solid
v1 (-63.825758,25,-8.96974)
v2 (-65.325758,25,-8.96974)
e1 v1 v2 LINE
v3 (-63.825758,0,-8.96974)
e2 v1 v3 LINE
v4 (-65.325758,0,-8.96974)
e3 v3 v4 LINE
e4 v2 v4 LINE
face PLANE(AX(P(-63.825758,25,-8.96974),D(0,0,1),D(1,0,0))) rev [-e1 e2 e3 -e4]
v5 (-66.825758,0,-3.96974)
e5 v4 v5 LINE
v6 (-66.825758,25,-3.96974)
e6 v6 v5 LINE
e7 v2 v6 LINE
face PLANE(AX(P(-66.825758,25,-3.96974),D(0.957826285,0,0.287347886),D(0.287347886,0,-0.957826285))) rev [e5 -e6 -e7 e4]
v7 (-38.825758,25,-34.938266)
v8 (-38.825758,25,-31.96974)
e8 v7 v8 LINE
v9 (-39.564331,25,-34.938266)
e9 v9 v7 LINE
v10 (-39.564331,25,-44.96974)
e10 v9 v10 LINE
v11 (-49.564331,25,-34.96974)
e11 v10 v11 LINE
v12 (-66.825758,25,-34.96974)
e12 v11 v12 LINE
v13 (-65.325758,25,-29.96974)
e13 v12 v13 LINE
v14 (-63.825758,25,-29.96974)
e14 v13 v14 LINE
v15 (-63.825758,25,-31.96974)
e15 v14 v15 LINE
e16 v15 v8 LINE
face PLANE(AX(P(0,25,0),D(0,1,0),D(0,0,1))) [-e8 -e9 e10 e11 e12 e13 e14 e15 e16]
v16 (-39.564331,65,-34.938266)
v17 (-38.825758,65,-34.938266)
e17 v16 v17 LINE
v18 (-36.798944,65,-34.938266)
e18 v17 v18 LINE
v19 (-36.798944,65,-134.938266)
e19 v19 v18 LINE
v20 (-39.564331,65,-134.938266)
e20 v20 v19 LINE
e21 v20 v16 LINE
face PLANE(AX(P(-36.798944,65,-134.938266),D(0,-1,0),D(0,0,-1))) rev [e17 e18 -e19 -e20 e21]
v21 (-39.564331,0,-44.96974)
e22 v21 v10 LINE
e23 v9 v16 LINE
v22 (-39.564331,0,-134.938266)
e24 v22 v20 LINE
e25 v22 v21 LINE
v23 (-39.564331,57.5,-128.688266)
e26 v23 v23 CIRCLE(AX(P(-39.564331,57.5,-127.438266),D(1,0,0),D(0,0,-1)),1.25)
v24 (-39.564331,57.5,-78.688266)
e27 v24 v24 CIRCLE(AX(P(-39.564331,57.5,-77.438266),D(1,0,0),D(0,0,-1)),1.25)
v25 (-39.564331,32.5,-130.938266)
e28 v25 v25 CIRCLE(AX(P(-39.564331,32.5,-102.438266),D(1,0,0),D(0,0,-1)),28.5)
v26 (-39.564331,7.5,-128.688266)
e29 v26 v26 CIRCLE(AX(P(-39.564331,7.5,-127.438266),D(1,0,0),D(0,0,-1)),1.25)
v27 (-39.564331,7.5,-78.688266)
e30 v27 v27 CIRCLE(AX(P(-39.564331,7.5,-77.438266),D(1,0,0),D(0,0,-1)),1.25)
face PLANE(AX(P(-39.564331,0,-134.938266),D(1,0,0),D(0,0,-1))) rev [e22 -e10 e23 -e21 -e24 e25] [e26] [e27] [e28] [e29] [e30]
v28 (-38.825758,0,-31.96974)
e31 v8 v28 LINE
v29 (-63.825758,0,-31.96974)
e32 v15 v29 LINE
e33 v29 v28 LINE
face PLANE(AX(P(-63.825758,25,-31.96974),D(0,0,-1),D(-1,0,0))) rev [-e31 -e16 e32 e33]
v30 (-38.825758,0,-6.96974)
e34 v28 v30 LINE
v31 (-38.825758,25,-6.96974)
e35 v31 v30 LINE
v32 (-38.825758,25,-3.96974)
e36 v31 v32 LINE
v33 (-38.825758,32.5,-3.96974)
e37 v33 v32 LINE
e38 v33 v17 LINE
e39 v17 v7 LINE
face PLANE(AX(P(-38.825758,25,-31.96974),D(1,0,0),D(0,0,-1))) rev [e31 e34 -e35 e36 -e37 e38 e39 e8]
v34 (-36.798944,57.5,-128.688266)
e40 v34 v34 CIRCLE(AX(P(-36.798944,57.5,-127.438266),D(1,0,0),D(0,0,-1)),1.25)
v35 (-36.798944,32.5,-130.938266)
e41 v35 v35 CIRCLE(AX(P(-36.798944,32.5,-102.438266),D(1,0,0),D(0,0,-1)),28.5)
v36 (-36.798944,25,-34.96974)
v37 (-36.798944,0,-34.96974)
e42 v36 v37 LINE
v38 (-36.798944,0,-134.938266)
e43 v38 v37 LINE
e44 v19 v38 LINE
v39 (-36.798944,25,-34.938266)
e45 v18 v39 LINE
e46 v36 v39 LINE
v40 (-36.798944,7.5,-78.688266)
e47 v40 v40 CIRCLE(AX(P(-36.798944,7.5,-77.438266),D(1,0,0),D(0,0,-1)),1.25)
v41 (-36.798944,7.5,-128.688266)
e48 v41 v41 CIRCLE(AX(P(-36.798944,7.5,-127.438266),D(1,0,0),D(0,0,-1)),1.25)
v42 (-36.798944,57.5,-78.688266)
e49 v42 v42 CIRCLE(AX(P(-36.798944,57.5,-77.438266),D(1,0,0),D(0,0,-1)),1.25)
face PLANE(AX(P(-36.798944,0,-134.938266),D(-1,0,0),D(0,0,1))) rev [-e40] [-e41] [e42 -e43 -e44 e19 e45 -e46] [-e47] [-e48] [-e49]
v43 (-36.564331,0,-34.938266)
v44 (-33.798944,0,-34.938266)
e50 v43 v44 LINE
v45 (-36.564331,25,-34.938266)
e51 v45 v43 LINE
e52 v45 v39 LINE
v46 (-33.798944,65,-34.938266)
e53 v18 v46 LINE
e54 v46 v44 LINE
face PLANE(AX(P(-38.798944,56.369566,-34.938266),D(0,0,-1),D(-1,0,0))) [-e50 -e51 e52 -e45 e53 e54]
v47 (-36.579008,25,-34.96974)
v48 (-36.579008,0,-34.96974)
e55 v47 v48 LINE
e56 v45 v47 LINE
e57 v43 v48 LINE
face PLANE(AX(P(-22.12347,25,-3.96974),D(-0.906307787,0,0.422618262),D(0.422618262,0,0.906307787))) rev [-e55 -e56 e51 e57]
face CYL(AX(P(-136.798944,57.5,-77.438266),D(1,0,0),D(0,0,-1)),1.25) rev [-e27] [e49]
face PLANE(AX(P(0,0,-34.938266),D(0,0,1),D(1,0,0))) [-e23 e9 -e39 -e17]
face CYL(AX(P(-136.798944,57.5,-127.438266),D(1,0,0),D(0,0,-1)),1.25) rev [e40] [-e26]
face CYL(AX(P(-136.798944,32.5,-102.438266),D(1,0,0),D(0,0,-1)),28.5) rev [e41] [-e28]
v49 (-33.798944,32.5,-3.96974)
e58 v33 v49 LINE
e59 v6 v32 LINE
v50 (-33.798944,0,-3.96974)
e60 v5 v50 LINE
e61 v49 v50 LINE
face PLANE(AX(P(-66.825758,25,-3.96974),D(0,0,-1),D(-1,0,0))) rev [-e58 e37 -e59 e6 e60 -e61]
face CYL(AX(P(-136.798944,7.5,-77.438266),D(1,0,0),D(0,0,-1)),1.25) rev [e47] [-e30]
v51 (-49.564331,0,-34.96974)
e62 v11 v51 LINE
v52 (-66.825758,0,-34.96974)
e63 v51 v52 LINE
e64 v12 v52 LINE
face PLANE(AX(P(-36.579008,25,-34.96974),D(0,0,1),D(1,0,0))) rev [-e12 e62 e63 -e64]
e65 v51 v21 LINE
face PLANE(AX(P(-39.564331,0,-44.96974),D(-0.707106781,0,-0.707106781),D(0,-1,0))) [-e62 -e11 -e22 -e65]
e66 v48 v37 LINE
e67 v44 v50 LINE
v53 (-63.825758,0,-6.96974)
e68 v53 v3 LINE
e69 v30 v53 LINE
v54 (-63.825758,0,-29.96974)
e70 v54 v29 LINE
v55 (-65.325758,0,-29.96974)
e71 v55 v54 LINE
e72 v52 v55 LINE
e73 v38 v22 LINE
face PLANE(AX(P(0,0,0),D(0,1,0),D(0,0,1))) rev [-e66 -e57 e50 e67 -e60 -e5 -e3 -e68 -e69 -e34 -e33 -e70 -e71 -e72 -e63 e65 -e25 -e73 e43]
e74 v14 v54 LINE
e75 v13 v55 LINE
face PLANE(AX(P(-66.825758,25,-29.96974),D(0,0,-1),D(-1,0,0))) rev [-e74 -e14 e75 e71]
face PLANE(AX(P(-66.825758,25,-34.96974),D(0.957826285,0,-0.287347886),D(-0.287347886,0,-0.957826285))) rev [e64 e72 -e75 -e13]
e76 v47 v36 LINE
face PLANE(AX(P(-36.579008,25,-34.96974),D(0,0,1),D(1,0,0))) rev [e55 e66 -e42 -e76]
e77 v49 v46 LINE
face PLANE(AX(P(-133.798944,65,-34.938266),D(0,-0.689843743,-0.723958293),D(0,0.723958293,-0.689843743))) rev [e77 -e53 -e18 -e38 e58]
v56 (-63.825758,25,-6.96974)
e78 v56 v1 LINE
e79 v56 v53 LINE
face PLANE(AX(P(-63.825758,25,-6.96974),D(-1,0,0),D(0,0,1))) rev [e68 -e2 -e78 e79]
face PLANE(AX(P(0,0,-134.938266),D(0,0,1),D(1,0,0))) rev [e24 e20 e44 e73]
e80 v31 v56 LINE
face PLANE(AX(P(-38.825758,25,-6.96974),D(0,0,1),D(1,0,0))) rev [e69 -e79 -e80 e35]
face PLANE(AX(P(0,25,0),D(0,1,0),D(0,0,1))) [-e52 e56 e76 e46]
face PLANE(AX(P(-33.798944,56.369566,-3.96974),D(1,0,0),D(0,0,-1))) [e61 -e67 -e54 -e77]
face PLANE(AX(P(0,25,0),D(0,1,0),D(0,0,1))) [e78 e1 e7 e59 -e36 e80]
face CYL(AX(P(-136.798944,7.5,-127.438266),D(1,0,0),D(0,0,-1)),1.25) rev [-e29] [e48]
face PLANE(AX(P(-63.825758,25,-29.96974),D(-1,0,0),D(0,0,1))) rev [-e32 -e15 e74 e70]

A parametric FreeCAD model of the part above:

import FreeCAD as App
import Part
import Sketcher

V = App.Vector
Q = App.Units.Quantity


def edges_at(feature, points):
    """Names of the edges that pass closest to the given points."""
    edges = feature.Shape.Edges
    near = lambda p: min(range(len(edges)), key=lambda i: edges[i].distToShape(Part.Vertex(*p))[0])
    return sorted({f"Edge{near(p) + 1}" for p in points})

doc = App.newDocument("Part")
params = doc.addObject("Spreadsheet::Sheet", "Params")
for row, (alias, value) in enumerate([
    ("sketch1_width", "3 mm"),
    ("sketch1_width2", "25 mm"),
    ("sketch1_height", "5 mm"),
    ("sketch1_height2", "2 mm"),
    ("pad1_length", "25 mm"),
    ("sketch2_height", "5 mm"),
    ("sketch2_width", "1.5 mm"),
    ("sketch4_width", "5 mm"),
    ("pad2_length", "25 mm"),
    ("sketch5_height", "65 mm"),
    ("pad3_length", "100 mm"),
    ("pad4_length", "40 mm"),
    ("sketch7_width", "32.5 mm"),
    ("pocket3_length", "100 mm"),
    ("sketch8_diameter", "57 mm"),
    ("pocket4_length", "100 mm"),
    ("sketch9_diameter", "2.5 mm"),
    ("pocket5_length", "100 mm"),
    ("chamfer_size", "10 mm"),
], start=1):
    params.set(f"A{row}", alias)
    params.set(f"B{row}", "=" + value)
    params.setAlias(f"B{row}", alias)

body = doc.addObject("PartDesign::Body", "Body")

# Sketch on XZ plane
sketch1 = body.newObject("Sketcher::SketchObject", "Sketch")
sketch1.AttachmentSupport = (doc.getObject("XZ_Plane"), [""])
sketch1.MapMode = "FlatFace"
sketch1.addGeometry(Part.LineSegment(V(-66.8, -35, 0), V(-66.8, -30, 0)), False)
sketch1.addGeometry(Part.LineSegment(V(-66.8, -30, 0), V(-63.8, -30, 0)), False)
sketch1.addGeometry(Part.LineSegment(V(-63.8, -30, 0), V(-63.8, -32, 0)), False)
sketch1.addGeometry(Part.LineSegment(V(-63.8, -32, 0), V(-38.8, -32, 0)), False)
sketch1.addGeometry(Part.LineSegment(V(-38.8, -32, 0), V(-38.8, -7, 0)), False)
sketch1.addGeometry(Part.LineSegment(V(-38.8, -7, 0), V(-63.8, -7, 0)), False)
sketch1.addGeometry(Part.LineSegment(V(-63.8, -7, 0), V(-63.8, -9, 0)), False)
sketch1.addGeometry(Part.LineSegment(V(-63.8, -9, 0), V(-66.8, -9, 0)), False)
sketch1.addGeometry(Part.LineSegment(V(-66.8, -9, 0), V(-66.8, -4, 0)), False)
sketch1.addGeometry(Part.LineSegment(V(-66.8, -4, 0), V(-22.1, -4, 0)), False)
sketch1.addGeometry(Part.LineSegment(V(-22.1, -4, 0), V(-36.6, -35, 0)), False)
sketch1.addGeometry(Part.LineSegment(V(-36.6, -35, 0), V(-66.8, -35, 0)), False)
sketch1.addConstraint(Sketcher.Constraint("Coincident", 0, 2, 1, 1))
sketch1.addConstraint(Sketcher.Constraint("Coincident", 1, 2, 2, 1))
sketch1.addConstraint(Sketcher.Constraint("Coincident", 2, 2, 3, 1))
sketch1.addConstraint(Sketcher.Constraint("Coincident", 3, 2, 4, 1))
sketch1.addConstraint(Sketcher.Constraint("Coincident", 4, 2, 5, 1))
sketch1.addConstraint(Sketcher.Constraint("Coincident", 5, 2, 6, 1))
sketch1.addConstraint(Sketcher.Constraint("Coincident", 6, 2, 7, 1))
sketch1.addConstraint(Sketcher.Constraint("Coincident", 7, 2, 8, 1))
sketch1.addConstraint(Sketcher.Constraint("Coincident", 8, 2, 9, 1))
sketch1.addConstraint(Sketcher.Constraint("Coincident", 9, 2, 10, 1))
sketch1.addConstraint(Sketcher.Constraint("Coincident", 10, 2, 11, 1))
sketch1.addConstraint(Sketcher.Constraint("Coincident", 11, 2, 0, 1))
sketch1.addConstraint(Sketcher.Constraint("Vertical", 0))
sketch1.addConstraint(Sketcher.Constraint("Horizontal", 1))
sketch1.addConstraint(Sketcher.Constraint("Vertical", 2))
sketch1.addConstraint(Sketcher.Constraint("Horizontal", 3))
sketch1.addConstraint(Sketcher.Constraint("Vertical", 4))
sketch1.addConstraint(Sketcher.Constraint("Horizontal", 5))
sketch1.addConstraint(Sketcher.Constraint("Vertical", 6))
sketch1.addConstraint(Sketcher.Constraint("Horizontal", 7))
sketch1.addConstraint(Sketcher.Constraint("Vertical", 8))
sketch1.addConstraint(Sketcher.Constraint("Horizontal", 9))
sketch1.addConstraint(Sketcher.Constraint("Horizontal", 11))
sketch1.addConstraint(Sketcher.Constraint("Vertical", 2, 2, 5, 2))
sketch1.addConstraint(Sketcher.Constraint("Vertical", 0, 2, 7, 2))
sketch1.addConstraint(Sketcher.Constraint("Equal", 5, 4))
sketch1.addConstraint(Sketcher.Constraint("Equal", 2, 6))
sketch1.addConstraint(Sketcher.Constraint("Equal", 0, 8))
sketch1.addConstraint(Sketcher.Constraint("DistanceX", 1, 1, 1, 2, Q("3 mm")))
sketch1.addConstraint(Sketcher.Constraint("DistanceX", 3, 1, 3, 2, Q("25 mm")))
sketch1.addConstraint(Sketcher.Constraint("DistanceY", 0, 1, 0, 2, Q("5 mm")))
sketch1.addConstraint(Sketcher.Constraint("DistanceY", 2, 2, 2, 1, Q("2 mm")))
sketch1.addConstraint(Sketcher.Constraint("Angle", 10, Q("-115 deg")))
sketch1.addConstraint(Sketcher.Constraint("DistanceX", 11, 2, 11, 1, Q("30.24675 mm")))
sketch1.addConstraint(Sketcher.Constraint("DistanceY", 0, 2, -1, 1, Q("29.96974 mm")))
sketch1.addConstraint(Sketcher.Constraint("DistanceX", 9, 2, -1, 1, Q("22.12347 mm")))
sketch1.setExpression("Constraints[28]", "Params.sketch1_width")
sketch1.setExpression("Constraints[29]", "Params.sketch1_width2")
sketch1.setExpression("Constraints[30]", "Params.sketch1_height")
sketch1.setExpression("Constraints[31]", "Params.sketch1_height2")
pad1 = body.newObject("PartDesign::Pad", "Pad")
pad1.Profile = sketch1
pad1.setExpression("Length", "Params.pad1_length")
pad1.Reversed = True

# Sketch on XZ plane
sketch2 = body.newObject("Sketcher::SketchObject", "Sketch001")
sketch2.AttachmentSupport = (doc.getObject("XZ_Plane"), [""])
sketch2.MapMode = "FlatFace"
sketch2.addGeometry(Part.LineSegment(V(-65.3, -9, 0), V(-66.8, -4, 0)), False)
sketch2.addGeometry(Part.LineSegment(V(-66.8, -4, 0), V(-66.8, -9, 0)), False)
sketch2.addGeometry(Part.LineSegment(V(-66.8, -9, 0), V(-65.3, -9, 0)), False)
sketch2.addGeometry(Part.LineSegment(V(-66.8, -30, 0), V(-66.8, -35, 0)), False)
sketch2.addGeometry(Part.LineSegment(V(-66.8, -35, 0), V(-65.3, -30, 0)), False)
sketch2.addGeometry(Part.LineSegment(V(-65.3, -30, 0), V(-66.8, -30, 0)), False)
sketch2.addConstraint(Sketcher.Constraint("Coincident", 0, 2, 1, 1))
sketch2.addConstraint(Sketcher.Constraint("Coincident", 1, 2, 2, 1))
sketch2.addConstraint(Sketcher.Constraint("Coincident", 2, 2, 0, 1))
sketch2.addConstraint(Sketcher.Constraint("Coincident", 3, 2, 4, 1))
sketch2.addConstraint(Sketcher.Constraint("Coincident", 4, 2, 5, 1))
sketch2.addConstraint(Sketcher.Constraint("Coincident", 5, 2, 3, 1))
sketch2.addConstraint(Sketcher.Constraint("Vertical", 1))
sketch2.addConstraint(Sketcher.Constraint("Horizontal", 2))
sketch2.addConstraint(Sketcher.Constraint("Vertical", 3))
sketch2.addConstraint(Sketcher.Constraint("Horizontal", 5))
sketch2.addConstraint(Sketcher.Constraint("Vertical", 1, 2, 3, 2))
sketch2.addConstraint(Sketcher.Constraint("Vertical", 2, 2, 4, 2))
sketch2.addConstraint(Sketcher.Constraint("Equal", 1, 3))
sketch2.addConstraint(Sketcher.Constraint("DistanceY", 1, 2, 1, 1, Q("5 mm")))
sketch2.addConstraint(Sketcher.Constraint("DistanceX", 2, 1, 2, 2, Q("1.5 mm")))
sketch2.addConstraint(Sketcher.Constraint("DistanceY", 3, 2, 1, 2, Q("26 mm")))
sketch2.addConstraint(Sketcher.Constraint("DistanceY", 0, 2, -1, 1, Q("3.96974 mm")))
sketch2.addConstraint(Sketcher.Constraint("DistanceX", 0, 2, -1, 1, Q("66.825758 mm")))
sketch2.setExpression("Constraints[13]", "Params.sketch2_height")
sketch2.setExpression("Constraints[14]", "Params.sketch2_width")
pocket1 = body.newObject("PartDesign::Pocket", "Pocket")
pocket1.Profile = sketch2
pocket1.Type = "ThroughAll"

# Sketch on XZ plane
sketch3 = body.newObject("Sketcher::SketchObject", "Sketch002")
sketch3.AttachmentSupport = (doc.getObject("XZ_Plane"), [""])
sketch3.MapMode = "FlatFace"
sketch3.addGeometry(Part.LineSegment(V(-19, -40, 0), V(-19, -1, 0)), False)
sketch3.addGeometry(Part.LineSegment(V(-19, -1, 0), V(-36, -1, 0)), False)
sketch3.addGeometry(Part.LineSegment(V(-36, -1, 0), V(-36, -40, 0)), False)
sketch3.addGeometry(Part.LineSegment(V(-36, -40, 0), V(-19, -40, 0)), False)
sketch3.addConstraint(Sketcher.Constraint("Coincident", 0, 2, 1, 1))
sketch3.addConstraint(Sketcher.Constraint("Coincident", 1, 2, 2, 1))
sketch3.addConstraint(Sketcher.Constraint("Coincident", 2, 2, 3, 1))
sketch3.addConstraint(Sketcher.Constraint("Coincident", 3, 2, 0, 1))
sketch3.addConstraint(Sketcher.Constraint("Vertical", 0))
sketch3.addConstraint(Sketcher.Constraint("Horizontal", 1))
sketch3.addConstraint(Sketcher.Constraint("Vertical", 2))
sketch3.addConstraint(Sketcher.Constraint("Horizontal", 3))
sketch3.addConstraint(Sketcher.Constraint("DistanceY", 0, 1, 0, 2, Q("38.473599 mm")))
sketch3.addConstraint(Sketcher.Constraint("DistanceX", 1, 2, 1, 1, Q("16.608313 mm")))
sketch3.addConstraint(Sketcher.Constraint("DistanceX", 0, 2, -1, 1, Q("19.399318 mm")))
sketch3.addConstraint(Sketcher.Constraint("DistanceY", 0, 2, -1, 1, Q("1.302944 mm")))
pocket2 = body.newObject("PartDesign::Pocket", "Pocket001")
pocket2.Profile = sketch3
pocket2.Type = "ThroughAll"

# Sketch on XZ plane
sketch4 = body.newObject("Sketcher::SketchObject", "Sketch003")
sketch4.AttachmentSupport = (doc.getObject("XZ_Plane"), [""])
sketch4.MapMode = "FlatFace"
sketch4.addGeometry(Part.LineSegment(V(-34, -35, 0), V(-34, -4, 0)), False)
sketch4.addGeometry(Part.LineSegment(V(-34, -4, 0), V(-39, -4, 0)), False)
sketch4.addGeometry(Part.LineSegment(V(-39, -4, 0), V(-39, -35, 0)), False)
sketch4.addGeometry(Part.LineSegment(V(-39, -35, 0), V(-34, -35, 0)), False)
sketch4.addConstraint(Sketcher.Constraint("Coincident", 0, 2, 1, 1))
sketch4.addConstraint(Sketcher.Constraint("Coincident", 1, 2, 2, 1))
sketch4.addConstraint(Sketcher.Constraint("Coincident", 2, 2, 3, 1))
sketch4.addConstraint(Sketcher.Constraint("Coincident", 3, 2, 0, 1))
sketch4.addConstraint(Sketcher.Constraint("Vertical", 0))
sketch4.addConstraint(Sketcher.Constraint("Horizontal", 1))
sketch4.addConstraint(Sketcher.Constraint("Vertical", 2))
sketch4.addConstraint(Sketcher.Constraint("Horizontal", 3))
sketch4.addConstraint(Sketcher.Constraint("DistanceX", 1, 2, 1, 1, Q("5 mm")))
sketch4.addConstraint(Sketcher.Constraint("DistanceY", 0, 1, 0, 2, Q("30.968527 mm")))
sketch4.addConstraint(Sketcher.Constraint("DistanceY", 0, 2, -1, 1, Q("3.96974 mm")))
sketch4.addConstraint(Sketcher.Constraint("DistanceX", 0, 2, -1, 1, Q("33.798944 mm")))
sketch4.setExpression("Constraints[8]", "Params.sketch4_width")
pad2 = body.newObject("PartDesign::Pad", "Pad001")
pad2.Profile = sketch4
pad2.setExpression("Length", "Params.pad2_length")
pad2.Reversed = True

# Sketch on XY plane
sketch5 = body.newObject("Sketcher::SketchObject", "Sketch004")
sketch5.AttachmentSupport = (doc.getObject("XY_Plane"), [""])
sketch5.MapMode = "FlatFace"
sketch5.AttachmentOffset = App.Placement(V(0, 0, -34.938266), App.Rotation())
sketch5.addGeometry(Part.LineSegment(V(-36.8, 65, 0), V(-36.8, 0, 0)), False)
sketch5.addGeometry(Part.LineSegment(V(-36.8, 0, 0), V(-39.6, 0, 0)), False)
sketch5.addGeometry(Part.LineSegment(V(-39.6, 0, 0), V(-39.6, 65, 0)), False)
sketch5.addGeometry(Part.LineSegment(V(-39.6, 65, 0), V(-36.8, 65, 0)), False)
sketch5.addConstraint(Sketcher.Constraint("Coincident", 0, 2, 1, 1))
sketch5.addConstraint(Sketcher.Constraint("Coincident", 1, 2, 2, 1))
sketch5.addConstraint(Sketcher.Constraint("Coincident", 2, 2, 3, 1))
sketch5.addConstraint(Sketcher.Constraint("Coincident", 3, 2, 0, 1))
sketch5.addConstraint(Sketcher.Constraint("Vertical", 0))
sketch5.addConstraint(Sketcher.Constraint("Horizontal", 1))
sketch5.addConstraint(Sketcher.Constraint("Vertical", 2))
sketch5.addConstraint(Sketcher.Constraint("Horizontal", 3))
sketch5.addConstraint(Sketcher.Constraint("PointOnObject", 0, 2, -1))
sketch5.addConstraint(Sketcher.Constraint("DistanceY", 0, 2, 0, 1, Q("65 mm")))
sketch5.addConstraint(Sketcher.Constraint("DistanceX", 1, 2, 1, 1, Q("2.765387 mm")))
sketch5.addConstraint(Sketcher.Constraint("DistanceX", 1, 2, -1, 1, Q("39.564331 mm")))
sketch5.setExpression("Constraints[9]", "Params.sketch5_height")
pad3 = body.newObject("PartDesign::Pad", "Pad002")
pad3.Profile = sketch5
pad3.setExpression("Length", "Params.pad3_length")
pad3.Reversed = True

# Sketch on XZ plane
sketch6 = body.newObject("Sketcher::SketchObject", "Sketch005")
sketch6.AttachmentSupport = (doc.getObject("XZ_Plane"), [""])
sketch6.MapMode = "FlatFace"
sketch6.AttachmentOffset = App.Placement(V(0, 0, -25), App.Rotation())
sketch6.addGeometry(Part.LineSegment(V(-39, -35, 0), V(-39, -4, 0)), False)
sketch6.addGeometry(Part.LineSegment(V(-39, -4, 0), V(-34, -4, 0)), False)
sketch6.addGeometry(Part.LineSegment(V(-34, -4, 0), V(-34, -35, 0)), False)
sketch6.addGeometry(Part.LineSegment(V(-34, -35, 0), V(-39, -35, 0)), False)
sketch6.addConstraint(Sketcher.Constraint("Coincident", 0, 2, 1, 1))
sketch6.addConstraint(Sketcher.Constraint("Coincident", 1, 2, 2, 1))
sketch6.addConstraint(Sketcher.Constraint("Coincident", 2, 2, 3, 1))
sketch6.addConstraint(Sketcher.Constraint("Coincident", 3, 2, 0, 1))
sketch6.addConstraint(Sketcher.Constraint("Vertical", 0))
sketch6.addConstraint(Sketcher.Constraint("Horizontal", 1))
sketch6.addConstraint(Sketcher.Constraint("Vertical", 2))
sketch6.addConstraint(Sketcher.Constraint("Horizontal", 3))
sketch6.addConstraint(Sketcher.Constraint("DistanceX", 1, 1, 1, 2, Q("5.026814 mm")))
sketch6.addConstraint(Sketcher.Constraint("DistanceY", 0, 1, 0, 2, Q("30.968527 mm")))
sketch6.addConstraint(Sketcher.Constraint("DistanceY", 0, 2, -1, 1, Q("3.96974 mm")))
sketch6.addConstraint(Sketcher.Constraint("DistanceX", 0, 2, -1, 1, Q("38.825758 mm")))
pad4 = body.newObject("PartDesign::Pad", "Pad003")
pad4.Profile = sketch6
pad4.setExpression("Length", "Params.pad4_length")
pad4.Reversed = True

# Sketch on YZ plane
sketch7 = body.newObject("Sketcher::SketchObject", "Sketch006")
sketch7.AttachmentSupport = (doc.getObject("YZ_Plane"), [""])
sketch7.MapMode = "FlatFace"
sketch7.AttachmentOffset = App.Placement(V(0, 0, -33.798944), App.Rotation())
sketch7.addGeometry(Part.LineSegment(V(32, -4, 0), V(65, -35, 0)), False)
sketch7.addGeometry(Part.LineSegment(V(65, -35, 0), V(65, -4, 0)), False)
sketch7.addGeometry(Part.LineSegment(V(65, -4, 0), V(32, -4, 0)), False)
sketch7.addConstraint(Sketcher.Constraint("Coincident", 0, 2, 1, 1))
sketch7.addConstraint(Sketcher.Constraint("Coincident", 1, 2, 2, 1))
sketch7.addConstraint(Sketcher.Constraint("Coincident", 2, 2, 0, 1))
sketch7.addConstraint(Sketcher.Constraint("Vertical", 1))
sketch7.addConstraint(Sketcher.Constraint("Horizontal", 2))
sketch7.addConstraint(Sketcher.Constraint("DistanceX", 2, 2, 2, 1, Q("32.5 mm")))
sketch7.addConstraint(Sketcher.Constraint("DistanceX", -1, 1, 0, 2, Q("65 mm")))
sketch7.addConstraint(Sketcher.Constraint("Distance", 0, Q("44.892089 mm")))
sketch7.addConstraint(Sketcher.Constraint("DistanceY", 1, 2, -1, 1, Q("3.96974 mm")))
sketch7.setExpression("Constraints[5]", "Params.sketch7_width")
pocket3 = body.newObject("PartDesign::Pocket", "Pocket002")
pocket3.Profile = sketch7
pocket3.setExpression("Length", "Params.pocket3_length")

# Sketch on YZ plane
sketch8 = body.newObject("Sketcher::SketchObject", "Sketch007")
sketch8.AttachmentSupport = (doc.getObject("YZ_Plane"), [""])
sketch8.MapMode = "FlatFace"
sketch8.AttachmentOffset = App.Placement(V(0, 0, -36.798944), App.Rotation())
sketch8.addGeometry(Part.Circle(V(32, -102, 0), V(0, 0, 1), 28), False)
sketch8.addConstraint(Sketcher.Constraint("Diameter", 0, Q("57 mm")))
sketch8.addConstraint(Sketcher.Constraint("DistanceX", -1, 1, 0, 3, Q("32.5 mm")))
sketch8.addConstraint(Sketcher.Constraint("DistanceY", 0, 3, -1, 1, Q("102.438266 mm")))
sketch8.setExpression("Constraints[0]", "Params.sketch8_diameter")
pocket4 = body.newObject("PartDesign::Pocket", "Pocket003")
pocket4.Profile = sketch8
pocket4.setExpression("Length", "Params.pocket4_length")

# Sketch on YZ plane
sketch9 = body.newObject("Sketcher::SketchObject", "Sketch008")
sketch9.AttachmentSupport = (doc.getObject("YZ_Plane"), [""])
sketch9.MapMode = "FlatFace"
sketch9.AttachmentOffset = App.Placement(V(0, 0, -36.798944), App.Rotation())
sketch9.addGeometry(Part.Circle(V(57.5, -77.4, 0), V(0, 0, 1), 1.2), False)
sketch9.addGeometry(Part.Circle(V(57.5, -127.4, 0), V(0, 0, 1), 1.2), False)
sketch9.addGeometry(Part.Circle(V(7.5, -127.4, 0), V(0, 0, 1), 1.2), False)
sketch9.addGeometry(Part.Circle(V(7.5, -77.4, 0), V(0, 0, 1), 1.2), False)
sketch9.addConstraint(Sketcher.Constraint("Equal", 0, 1))
sketch9.addConstraint(Sketcher.Constraint("Equal", 1, 2))
sketch9.addConstraint(Sketcher.Constraint("Equal", 2, 3))
sketch9.addConstraint(Sketcher.Constraint("Horizontal", 1, 3, 2, 3))
sketch9.addConstraint(Sketcher.Constraint("Horizontal", 0, 3, 3, 3))
sketch9.addConstraint(Sketcher.Constraint("Vertical", 0, 3, 1, 3))
sketch9.addConstraint(Sketcher.Constraint("Vertical", 2, 3, 3, 3))
sketch9.addConstraint(Sketcher.Constraint("Diameter", 0, Q("2.5 mm")))
sketch9.addConstraint(Sketcher.Constraint("DistanceY", 1, 3, 0, 3, Q("50 mm")))
sketch9.addConstraint(Sketcher.Constraint("DistanceX", 2, 3, 1, 3, Q("50 mm")))
sketch9.addConstraint(Sketcher.Constraint("DistanceX", -1, 1, 0, 3, Q("57.5 mm")))
sketch9.addConstraint(Sketcher.Constraint("DistanceY", 0, 3, -1, 1, Q("77.438266 mm")))
sketch9.setExpression("Constraints[7]", "Params.sketch9_diameter")
pocket5 = body.newObject("PartDesign::Pocket", "Pocket004")
pocket5.Profile = sketch9
pocket5.setExpression("Length", "Params.pocket5_length")
doc.recompute()

chamfer = body.newObject("PartDesign::Chamfer", "Chamfer")
chamfer.Base = (pocket5, edges_at(pocket5, [(-39.564, 12.5, -34.97)]))
chamfer.setExpression("Size", "Params.chamfer_size")

doc.recompute()
